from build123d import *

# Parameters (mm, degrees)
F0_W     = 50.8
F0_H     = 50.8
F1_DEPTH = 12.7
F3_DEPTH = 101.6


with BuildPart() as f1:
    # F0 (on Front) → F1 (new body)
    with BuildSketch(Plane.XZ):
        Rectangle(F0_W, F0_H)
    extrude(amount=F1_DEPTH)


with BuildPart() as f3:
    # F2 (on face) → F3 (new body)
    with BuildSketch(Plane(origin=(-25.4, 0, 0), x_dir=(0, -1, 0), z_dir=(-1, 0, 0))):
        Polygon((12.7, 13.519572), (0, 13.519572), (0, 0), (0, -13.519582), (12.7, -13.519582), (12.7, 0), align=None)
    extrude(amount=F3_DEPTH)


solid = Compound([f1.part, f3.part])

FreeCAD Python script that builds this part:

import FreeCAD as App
import Part
import Sketcher
Q = App.Units.Quantity


def add_polygon(sketch, points):
    """Adds a closed chain of lines whose ends are joined by coincident constraints."""
    first, n = sketch.GeometryCount, len(points)
    for a, b in zip(points, points[1:] + points[:1]):
        sketch.addGeometry(Part.LineSegment(App.Vector(*a, 0), App.Vector(*b, 0)), False)
    for i in range(n):
        sketch.addConstraint(Sketcher.Constraint("Coincident", first + i, 2, first + (i + 1) % n, 1))

doc = App.newDocument("Part")
body = doc.addObject("PartDesign::Body", "Body")

# Sketch on XZ plane
sketch1 = body.newObject("Sketcher::SketchObject", "Sketch")
sketch1.AttachmentSupport = (doc.getObject("XZ_Plane"), [""])
sketch1.MapMode = "FlatFace"
add_polygon(sketch1, [(-25, 25), (-25, -25), (25, -25), (25, 25)])  # lines 0-3
sketch1.addConstraint([
    Sketcher.Constraint("Vertical", 0),
    Sketcher.Constraint("Horizontal", 1),
    Sketcher.Constraint("Vertical", 2),
    Sketcher.Constraint("Horizontal", 3),
    Sketcher.Constraint("Symmetric", 0, 2, 2, 2, -1, 1),
    Sketcher.Constraint("Equal", 3, 0),
    Sketcher.Constraint("DistanceX", 1, 1, 1, 2, Q("2 in")),
])
pad1 = body.newObject("PartDesign::Pad", "Pad")
pad1.Profile = sketch1
pad1.Length = Q("0.5 in")
body2 = doc.addObject("PartDesign::Body", "Body001")

# Sketch on YZ plane
sketch2 = body2.newObject("Sketcher::SketchObject", "Sketch001")
sketch2.AttachmentSupport = (doc.getObject("YZ_Plane001"), [""])
sketch2.MapMode = "FlatFace"
sketch2.AttachmentOffset = App.Placement(App.Vector(0, 0, -1 * 25.4), App.Rotation())
add_polygon(sketch2, [(-13, 14), (0, 14), (0, -14), (-13, -14)])  # lines 0-3
sketch2.addConstraint([
    Sketcher.Constraint("Horizontal", 0),
    Sketcher.Constraint("Vertical", 1),
    Sketcher.Constraint("Horizontal", 2),
    Sketcher.Constraint("Vertical", 3),
    Sketcher.Constraint("Symmetric", 0, 2, 1, 2, -1, 1),
    Sketcher.Constraint("DistanceX", 0, 1, 0, 2, Q("0.5 in")),
    Sketcher.Constraint("DistanceY", 1, 2, 1, 1, Q("27.039154 mm")),
])
pad2 = body2.newObject("PartDesign::Pad", "Pad001")
pad2.Profile = sketch2
pad2.Length = Q("4 in")
pad2.Reversed = True

doc.recompute()
